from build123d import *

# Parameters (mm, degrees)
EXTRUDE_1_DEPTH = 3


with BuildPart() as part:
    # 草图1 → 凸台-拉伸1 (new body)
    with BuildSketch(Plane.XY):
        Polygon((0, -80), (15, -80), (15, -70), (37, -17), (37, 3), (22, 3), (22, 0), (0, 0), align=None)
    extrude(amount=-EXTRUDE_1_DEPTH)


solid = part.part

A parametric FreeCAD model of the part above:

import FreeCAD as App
import Part
import Sketcher
from FreeCAD import Vector
Q = App.Units.Quantity


def add_polygon(sketch, points):
    """Adds a closed chain of lines whose ends are joined by coincident constraints."""
    first, n = sketch.GeometryCount, len(points)
    for a, b in zip(points, points[1:] + points[:1]):
        sketch.addGeometry(Part.LineSegment(App.Vector(*a, 0), App.Vector(*b, 0)), False)
    for i in range(n):
        sketch.addConstraint(Sketcher.Constraint("Coincident", first + i, 2, first + (i + 1) % n, 1))

doc = App.newDocument("Part")
body = doc.addObject("PartDesign::Body", "Body")

# Sketch on XY plane
sketch1 = body.newObject("Sketcher::SketchObject", "Sketch")
sketch1.AttachmentSupport = (doc.getObject("XY_Plane"), [""])
sketch1.MapMode = "FlatFace"
add_polygon(sketch1, [(0, -80), (15, -80), (15, -70), (37, -17), (37, 3), (22, 3), (22, 0), (0, 0)])  # lines 0-7
sketch1.addConstraint([
    Sketcher.Constraint("Horizontal", 0),
    Sketcher.Constraint("Vertical", 1),
    Sketcher.Constraint("Vertical", 3),
    Sketcher.Constraint("Horizontal", 4),
    Sketcher.Constraint("Vertical", 5),
    Sketcher.Constraint("Horizontal", 6),
    Sketcher.Constraint("Vertical", 7),
    Sketcher.Constraint("Coincident", 6, 2, -1, 1),
    Sketcher.Constraint("Equal", 0, 4),
    Sketcher.Constraint("DistanceX", 0, 1, 0, 2, Q("15 mm")),
    Sketcher.Constraint("DistanceX", 6, 2, 6, 1, Q("22 mm")),
    Sketcher.Constraint("DistanceY", 1, 1, 1, 2, Q("10 mm")),
    Sketcher.Constraint("DistanceY", 3, 1, 3, 2, Q("20 mm")),
    Sketcher.Constraint("DistanceY", 5, 2, 5, 1, Q("3 mm")),
    Sketcher.Constraint("DistanceY", 7, 2, 7, 1, Q("80 mm")),
])
pad1 = body.newObject("PartDesign::Pad", "Pad")
pad1.Profile = sketch1
pad1.Length = 3
pad1.Reversed = True

doc.recompute()
